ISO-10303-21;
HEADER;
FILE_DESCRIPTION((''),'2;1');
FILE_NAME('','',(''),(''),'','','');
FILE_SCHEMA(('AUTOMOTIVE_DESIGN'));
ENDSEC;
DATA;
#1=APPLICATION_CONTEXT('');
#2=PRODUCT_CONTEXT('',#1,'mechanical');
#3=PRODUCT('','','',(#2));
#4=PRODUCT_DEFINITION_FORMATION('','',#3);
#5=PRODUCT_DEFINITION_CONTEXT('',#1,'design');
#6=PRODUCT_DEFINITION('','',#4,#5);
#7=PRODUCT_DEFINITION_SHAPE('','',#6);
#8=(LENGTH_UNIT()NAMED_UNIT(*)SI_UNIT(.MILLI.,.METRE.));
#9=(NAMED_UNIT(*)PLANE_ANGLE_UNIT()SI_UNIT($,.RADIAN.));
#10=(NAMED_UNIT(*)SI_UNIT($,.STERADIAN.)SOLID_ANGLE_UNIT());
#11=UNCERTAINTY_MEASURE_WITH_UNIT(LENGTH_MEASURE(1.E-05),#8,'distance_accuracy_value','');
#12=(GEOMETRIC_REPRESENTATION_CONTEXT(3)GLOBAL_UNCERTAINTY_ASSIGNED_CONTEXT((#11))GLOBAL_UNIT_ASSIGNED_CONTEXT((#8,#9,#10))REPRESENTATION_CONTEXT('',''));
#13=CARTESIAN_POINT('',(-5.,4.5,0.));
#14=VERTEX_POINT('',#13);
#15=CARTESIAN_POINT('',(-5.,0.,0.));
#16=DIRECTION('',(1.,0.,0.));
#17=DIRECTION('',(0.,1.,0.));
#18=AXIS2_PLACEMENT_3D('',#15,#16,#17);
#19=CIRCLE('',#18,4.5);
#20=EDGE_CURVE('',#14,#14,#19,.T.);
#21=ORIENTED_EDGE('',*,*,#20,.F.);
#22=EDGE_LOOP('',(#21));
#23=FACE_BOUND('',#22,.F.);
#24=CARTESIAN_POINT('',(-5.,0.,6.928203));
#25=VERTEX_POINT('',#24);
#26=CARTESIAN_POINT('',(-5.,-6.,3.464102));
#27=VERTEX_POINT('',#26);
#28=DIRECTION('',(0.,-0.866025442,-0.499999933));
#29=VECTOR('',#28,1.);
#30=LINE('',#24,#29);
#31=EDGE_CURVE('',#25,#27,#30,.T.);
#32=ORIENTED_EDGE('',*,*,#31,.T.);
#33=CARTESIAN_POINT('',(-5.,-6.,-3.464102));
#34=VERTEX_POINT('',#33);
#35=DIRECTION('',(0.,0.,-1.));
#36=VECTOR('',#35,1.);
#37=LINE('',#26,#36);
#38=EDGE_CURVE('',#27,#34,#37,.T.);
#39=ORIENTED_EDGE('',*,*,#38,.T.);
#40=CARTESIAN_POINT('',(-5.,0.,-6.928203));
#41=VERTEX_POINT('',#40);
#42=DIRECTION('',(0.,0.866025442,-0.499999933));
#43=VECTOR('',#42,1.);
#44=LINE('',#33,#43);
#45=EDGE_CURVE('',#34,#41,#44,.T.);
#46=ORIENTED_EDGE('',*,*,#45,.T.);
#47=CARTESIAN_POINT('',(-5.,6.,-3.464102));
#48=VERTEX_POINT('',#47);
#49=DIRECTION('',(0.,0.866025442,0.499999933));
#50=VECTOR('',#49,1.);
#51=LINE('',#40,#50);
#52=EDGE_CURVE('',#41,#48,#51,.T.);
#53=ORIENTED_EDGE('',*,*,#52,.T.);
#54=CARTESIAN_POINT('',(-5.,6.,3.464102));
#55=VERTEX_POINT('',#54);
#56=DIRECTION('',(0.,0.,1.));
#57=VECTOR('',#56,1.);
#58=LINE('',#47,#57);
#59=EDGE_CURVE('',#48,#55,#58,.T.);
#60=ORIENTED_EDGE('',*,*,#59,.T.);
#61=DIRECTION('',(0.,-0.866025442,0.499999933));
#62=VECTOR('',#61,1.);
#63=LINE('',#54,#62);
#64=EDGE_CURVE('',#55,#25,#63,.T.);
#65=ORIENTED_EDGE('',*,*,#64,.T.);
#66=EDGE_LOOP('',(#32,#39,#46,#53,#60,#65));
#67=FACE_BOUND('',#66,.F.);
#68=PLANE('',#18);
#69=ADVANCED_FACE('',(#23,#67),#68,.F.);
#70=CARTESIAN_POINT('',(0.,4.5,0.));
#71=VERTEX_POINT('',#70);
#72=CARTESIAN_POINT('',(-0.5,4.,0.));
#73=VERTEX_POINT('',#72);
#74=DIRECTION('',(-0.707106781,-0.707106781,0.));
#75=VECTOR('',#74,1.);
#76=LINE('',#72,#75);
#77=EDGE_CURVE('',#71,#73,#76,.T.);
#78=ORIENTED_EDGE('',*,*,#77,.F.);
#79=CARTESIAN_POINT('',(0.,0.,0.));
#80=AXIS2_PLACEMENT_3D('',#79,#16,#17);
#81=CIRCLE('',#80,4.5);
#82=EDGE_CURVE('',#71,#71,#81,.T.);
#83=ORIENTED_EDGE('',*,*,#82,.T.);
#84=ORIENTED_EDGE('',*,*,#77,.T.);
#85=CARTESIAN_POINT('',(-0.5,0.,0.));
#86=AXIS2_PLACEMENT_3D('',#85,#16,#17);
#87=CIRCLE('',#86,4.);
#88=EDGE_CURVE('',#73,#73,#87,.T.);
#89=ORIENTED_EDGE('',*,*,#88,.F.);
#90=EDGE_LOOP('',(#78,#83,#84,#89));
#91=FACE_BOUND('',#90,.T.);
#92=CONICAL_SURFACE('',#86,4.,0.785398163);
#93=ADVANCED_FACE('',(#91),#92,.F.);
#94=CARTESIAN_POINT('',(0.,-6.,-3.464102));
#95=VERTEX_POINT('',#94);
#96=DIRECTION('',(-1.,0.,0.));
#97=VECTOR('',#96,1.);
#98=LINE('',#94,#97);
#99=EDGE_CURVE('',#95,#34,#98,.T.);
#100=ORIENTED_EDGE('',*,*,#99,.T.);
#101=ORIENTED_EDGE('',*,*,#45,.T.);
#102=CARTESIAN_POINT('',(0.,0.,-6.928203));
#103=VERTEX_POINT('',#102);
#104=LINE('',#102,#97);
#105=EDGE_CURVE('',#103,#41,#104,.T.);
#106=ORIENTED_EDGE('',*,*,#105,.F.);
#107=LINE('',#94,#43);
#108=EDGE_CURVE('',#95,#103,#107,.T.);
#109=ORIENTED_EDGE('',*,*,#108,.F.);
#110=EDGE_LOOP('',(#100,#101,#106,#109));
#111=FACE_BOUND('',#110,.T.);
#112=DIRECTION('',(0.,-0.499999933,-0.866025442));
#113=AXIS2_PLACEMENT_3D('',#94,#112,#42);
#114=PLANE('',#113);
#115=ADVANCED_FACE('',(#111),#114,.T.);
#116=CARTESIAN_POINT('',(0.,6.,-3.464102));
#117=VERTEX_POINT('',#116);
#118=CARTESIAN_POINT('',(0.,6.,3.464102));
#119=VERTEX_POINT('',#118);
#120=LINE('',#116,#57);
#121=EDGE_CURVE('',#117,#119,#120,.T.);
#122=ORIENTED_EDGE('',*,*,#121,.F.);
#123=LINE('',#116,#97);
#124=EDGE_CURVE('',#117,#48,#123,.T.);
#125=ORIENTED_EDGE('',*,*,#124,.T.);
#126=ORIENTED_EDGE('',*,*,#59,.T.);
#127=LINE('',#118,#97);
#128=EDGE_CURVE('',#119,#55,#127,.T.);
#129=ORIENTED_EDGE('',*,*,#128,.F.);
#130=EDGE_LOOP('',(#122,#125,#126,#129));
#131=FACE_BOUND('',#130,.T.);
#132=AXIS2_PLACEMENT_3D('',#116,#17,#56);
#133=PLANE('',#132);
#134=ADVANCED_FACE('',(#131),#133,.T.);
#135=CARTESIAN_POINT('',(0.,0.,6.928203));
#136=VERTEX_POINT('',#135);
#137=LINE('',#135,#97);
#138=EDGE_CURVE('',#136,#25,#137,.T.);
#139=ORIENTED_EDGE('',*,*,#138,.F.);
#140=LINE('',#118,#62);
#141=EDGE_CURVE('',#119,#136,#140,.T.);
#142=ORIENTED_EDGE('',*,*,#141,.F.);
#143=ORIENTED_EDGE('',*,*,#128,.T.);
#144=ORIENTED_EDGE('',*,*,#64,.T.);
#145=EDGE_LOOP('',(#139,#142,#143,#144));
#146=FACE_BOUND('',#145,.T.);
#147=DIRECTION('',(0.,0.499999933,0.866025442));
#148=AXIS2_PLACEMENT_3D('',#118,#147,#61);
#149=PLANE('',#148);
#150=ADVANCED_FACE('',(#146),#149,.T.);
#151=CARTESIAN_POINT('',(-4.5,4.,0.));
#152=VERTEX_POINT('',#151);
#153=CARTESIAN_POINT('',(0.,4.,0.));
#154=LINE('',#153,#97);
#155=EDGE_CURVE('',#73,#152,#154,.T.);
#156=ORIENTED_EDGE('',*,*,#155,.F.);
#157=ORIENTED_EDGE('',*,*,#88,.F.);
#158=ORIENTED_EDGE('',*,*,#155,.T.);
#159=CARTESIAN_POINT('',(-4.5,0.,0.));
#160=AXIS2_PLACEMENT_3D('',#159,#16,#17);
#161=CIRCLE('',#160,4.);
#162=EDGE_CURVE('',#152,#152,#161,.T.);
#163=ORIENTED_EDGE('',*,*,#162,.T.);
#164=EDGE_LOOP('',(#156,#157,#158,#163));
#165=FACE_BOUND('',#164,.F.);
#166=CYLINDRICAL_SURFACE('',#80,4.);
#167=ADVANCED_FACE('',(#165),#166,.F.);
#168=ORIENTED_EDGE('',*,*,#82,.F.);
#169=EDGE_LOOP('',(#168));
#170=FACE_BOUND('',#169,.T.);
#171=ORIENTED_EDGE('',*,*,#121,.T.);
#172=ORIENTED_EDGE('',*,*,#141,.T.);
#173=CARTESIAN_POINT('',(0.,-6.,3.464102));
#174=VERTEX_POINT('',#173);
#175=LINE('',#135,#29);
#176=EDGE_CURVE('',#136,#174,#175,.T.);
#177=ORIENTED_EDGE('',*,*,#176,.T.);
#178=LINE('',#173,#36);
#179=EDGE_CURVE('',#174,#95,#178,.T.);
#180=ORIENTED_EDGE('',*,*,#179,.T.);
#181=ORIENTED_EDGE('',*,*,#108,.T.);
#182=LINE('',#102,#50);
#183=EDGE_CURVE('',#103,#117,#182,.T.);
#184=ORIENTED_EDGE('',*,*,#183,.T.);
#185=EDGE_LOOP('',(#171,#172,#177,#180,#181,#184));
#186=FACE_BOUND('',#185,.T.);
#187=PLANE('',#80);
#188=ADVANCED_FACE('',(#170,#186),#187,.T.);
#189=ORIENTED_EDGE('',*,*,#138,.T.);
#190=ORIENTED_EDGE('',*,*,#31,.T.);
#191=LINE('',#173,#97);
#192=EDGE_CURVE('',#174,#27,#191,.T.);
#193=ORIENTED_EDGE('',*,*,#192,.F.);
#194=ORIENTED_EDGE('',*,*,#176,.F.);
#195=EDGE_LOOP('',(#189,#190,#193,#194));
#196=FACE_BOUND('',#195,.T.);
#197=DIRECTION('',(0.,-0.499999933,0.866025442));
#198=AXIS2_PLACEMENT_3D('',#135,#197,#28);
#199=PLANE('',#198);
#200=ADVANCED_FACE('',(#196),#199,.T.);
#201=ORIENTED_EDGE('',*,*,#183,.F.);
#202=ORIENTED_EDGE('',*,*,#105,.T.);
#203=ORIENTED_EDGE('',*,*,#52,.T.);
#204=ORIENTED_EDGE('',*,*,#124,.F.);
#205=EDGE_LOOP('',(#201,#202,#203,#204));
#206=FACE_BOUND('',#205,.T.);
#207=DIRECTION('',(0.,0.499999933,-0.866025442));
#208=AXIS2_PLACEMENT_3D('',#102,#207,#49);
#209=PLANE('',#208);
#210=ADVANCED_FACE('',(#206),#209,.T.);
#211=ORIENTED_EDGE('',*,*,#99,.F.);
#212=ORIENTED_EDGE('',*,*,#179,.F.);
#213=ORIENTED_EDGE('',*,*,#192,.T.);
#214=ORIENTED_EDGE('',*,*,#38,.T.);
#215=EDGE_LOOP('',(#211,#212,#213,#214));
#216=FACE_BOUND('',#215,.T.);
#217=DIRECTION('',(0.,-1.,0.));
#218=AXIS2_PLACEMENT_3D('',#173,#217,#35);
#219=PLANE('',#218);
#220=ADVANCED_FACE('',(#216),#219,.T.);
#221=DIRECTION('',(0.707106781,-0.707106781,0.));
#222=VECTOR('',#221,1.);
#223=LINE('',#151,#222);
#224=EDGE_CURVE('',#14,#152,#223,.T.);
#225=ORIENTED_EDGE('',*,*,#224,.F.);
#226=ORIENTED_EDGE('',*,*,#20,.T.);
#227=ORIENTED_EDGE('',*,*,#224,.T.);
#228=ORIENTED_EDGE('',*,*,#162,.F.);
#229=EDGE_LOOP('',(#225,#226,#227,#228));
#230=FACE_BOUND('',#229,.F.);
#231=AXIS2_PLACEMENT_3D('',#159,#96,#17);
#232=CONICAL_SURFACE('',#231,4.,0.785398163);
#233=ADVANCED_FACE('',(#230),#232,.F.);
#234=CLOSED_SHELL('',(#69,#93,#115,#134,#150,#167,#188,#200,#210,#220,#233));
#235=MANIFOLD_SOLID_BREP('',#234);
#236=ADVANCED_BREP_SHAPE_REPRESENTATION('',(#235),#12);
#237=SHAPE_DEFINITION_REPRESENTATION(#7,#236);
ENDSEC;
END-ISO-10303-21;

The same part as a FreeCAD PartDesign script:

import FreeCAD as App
import Part
import Sketcher
from FreeCAD import Vector
Q = App.Units.Quantity


def edges_at(feature, points):
    """Names of the edges that pass closest to the given points."""
    edges = feature.Shape.Edges
    near = lambda p: min(range(len(edges)), key=lambda i: edges[i].distToShape(Part.Vertex(*p))[0])
    return sorted({f"Edge{near(p) + 1}" for p in points})


def add_polygon(sketch, points):
    """Adds a closed chain of lines whose ends are joined by coincident constraints."""
    first, n = sketch.GeometryCount, len(points)
    for a, b in zip(points, points[1:] + points[:1]):
        sketch.addGeometry(Part.LineSegment(App.Vector(*a, 0), App.Vector(*b, 0)), False)
    for i in range(n):
        sketch.addConstraint(Sketcher.Constraint("Coincident", first + i, 2, first + (i + 1) % n, 1))

doc = App.newDocument("Part")
body = doc.addObject("PartDesign::Body", "Body")

# Sketch on YZ plane
sketch1 = body.newObject("Sketcher::SketchObject", "Sketch")
sketch1.AttachmentSupport = (doc.getObject("YZ_Plane"), [""])
sketch1.MapMode = "FlatFace"
add_polygon(sketch1, [(0, -7), (6, -3), (6, 3), (0, 7), (-6, 3), (-6, -3)])  # lines 0-5
sketch1.addConstraint([
    Sketcher.Constraint("Vertical", 1),
    Sketcher.Constraint("Vertical", 4),
    Sketcher.Constraint("Symmetric", 0, 2, 3, 2, -1, 1),
    Sketcher.Constraint("Symmetric", 2, 2, 5, 2, -1, 1),
    Sketcher.Constraint("PointOnObject", 2, 2, -2),
    Sketcher.Constraint("Parallel", 2, 5),
    Sketcher.Constraint("Horizontal", 1, 2, 3, 2),
    Sketcher.Constraint("Angle", 0, Q("29.999996 deg")),
    Sketcher.Constraint("DistanceX", -1, 1, 0, 2, Q("6 mm")),
    Sketcher.Constraint("DistanceY", 0, 2, -1, 1, Q("3.464102 mm")),
])
pad1 = body.newObject("PartDesign::Pad", "Pad")
pad1.Profile = sketch1
pad1.Length = 5
pad1.Reversed = True

# Sketch on YZ plane
sketch2 = body.newObject("Sketcher::SketchObject", "Sketch001")
sketch2.AttachmentSupport = (doc.getObject("YZ_Plane"), [""])
sketch2.MapMode = "FlatFace"
sketch2.addGeometry(Part.Circle(Vector(0, 0, 0), Vector(0, 0, 1), 4), False)
sketch2.addConstraint([
    Sketcher.Constraint("Coincident", 0, 3, -1, 1),
    Sketcher.Constraint("Diameter", 0, Q("8 mm")),
])
pocket1 = body.newObject("PartDesign::Pocket", "Pocket")
pocket1.Profile = sketch2
pocket1.Type = "ThroughAll"
doc.recompute()

chamfer = body.newObject("PartDesign::Chamfer", "Chamfer")
chamfer.Base = (pocket1, edges_at(pocket1, [(0, -4, 0), (-2.5, 4, 0), (-5, -4, 0)]))
chamfer.Size = 0.5

doc.recompute()
